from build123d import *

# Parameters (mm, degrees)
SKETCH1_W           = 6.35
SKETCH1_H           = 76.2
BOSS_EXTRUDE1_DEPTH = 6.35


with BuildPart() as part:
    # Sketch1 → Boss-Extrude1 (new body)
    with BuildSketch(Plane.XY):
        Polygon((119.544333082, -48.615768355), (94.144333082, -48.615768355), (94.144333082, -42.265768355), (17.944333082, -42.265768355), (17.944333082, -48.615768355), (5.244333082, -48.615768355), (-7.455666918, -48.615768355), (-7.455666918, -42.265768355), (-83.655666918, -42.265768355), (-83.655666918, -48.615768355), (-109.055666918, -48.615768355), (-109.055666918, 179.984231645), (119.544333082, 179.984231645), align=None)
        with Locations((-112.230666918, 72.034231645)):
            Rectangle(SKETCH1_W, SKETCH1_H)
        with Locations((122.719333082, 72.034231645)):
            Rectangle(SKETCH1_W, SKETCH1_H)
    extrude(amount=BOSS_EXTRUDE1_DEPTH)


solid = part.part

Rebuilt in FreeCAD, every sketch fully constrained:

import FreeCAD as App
import Part
import Sketcher
from FreeCAD import Vector
Q = App.Units.Quantity

doc = App.newDocument("Part")
body = doc.addObject("PartDesign::Body", "Body")

sketch1 = doc.addObject("Sketcher::SketchObject", "Sketch")
body.addObject(sketch1)
sketch1.AttachmentSupport = (doc.XY_Plane, [""])
sketch1.MapMode = "FlatFace"
sketch1.addGeometry(Part.LineSegment(Vector(94, -49, 0), Vector(120, -49, 0)), False)
sketch1.addGeometry(Part.LineSegment(Vector(120, -49, 0), Vector(120, 34, 0)), False)
sketch1.addGeometry(Part.LineSegment(Vector(120, 34, 0), Vector(126, 34, 0)), False)
sketch1.addGeometry(Part.LineSegment(Vector(126, 34, 0), Vector(126, 110, 0)), False)
sketch1.addGeometry(Part.LineSegment(Vector(126, 110, 0), Vector(120, 110, 0)), False)
sketch1.addGeometry(Part.LineSegment(Vector(120, 110, 0), Vector(120, 180, 0)), False)
sketch1.addGeometry(Part.LineSegment(Vector(120, 180, 0), Vector(-109, 180, 0)), False)
sketch1.addGeometry(Part.LineSegment(Vector(-109, 180, 0), Vector(-109, 110, 0)), False)
sketch1.addGeometry(Part.LineSegment(Vector(-109, 110, 0), Vector(-115, 110, 0)), False)
sketch1.addGeometry(Part.LineSegment(Vector(-115, 110, 0), Vector(-115, 34, 0)), False)
sketch1.addGeometry(Part.LineSegment(Vector(-115, 34, 0), Vector(-109, 34, 0)), False)
sketch1.addGeometry(Part.LineSegment(Vector(-109, 34, 0), Vector(-109, -49, 0)), False)
sketch1.addGeometry(Part.LineSegment(Vector(-109, -49, 0), Vector(-84, -49, 0)), False)
sketch1.addGeometry(Part.LineSegment(Vector(-84, -49, 0), Vector(-84, -42, 0)), False)
sketch1.addGeometry(Part.LineSegment(Vector(-84, -42, 0), Vector(-7, -42, 0)), False)
sketch1.addGeometry(Part.LineSegment(Vector(-7, -42, 0), Vector(-7, -49, 0)), False)
sketch1.addGeometry(Part.LineSegment(Vector(-7, -49, 0), Vector(18, -49, 0)), False)
sketch1.addGeometry(Part.LineSegment(Vector(18, -49, 0), Vector(18, -42, 0)), False)
sketch1.addGeometry(Part.LineSegment(Vector(18, -42, 0), Vector(94, -42, 0)), False)
sketch1.addGeometry(Part.LineSegment(Vector(94, -42, 0), Vector(94, -49, 0)), False)
sketch1.addConstraint(Sketcher.Constraint("Coincident", 0, 2, 1, 1))
sketch1.addConstraint(Sketcher.Constraint("Coincident", 1, 2, 2, 1))
sketch1.addConstraint(Sketcher.Constraint("Coincident", 2, 2, 3, 1))
sketch1.addConstraint(Sketcher.Constraint("Coincident", 3, 2, 4, 1))
sketch1.addConstraint(Sketcher.Constraint("Coincident", 4, 2, 5, 1))
sketch1.addConstraint(Sketcher.Constraint("Coincident", 5, 2, 6, 1))
sketch1.addConstraint(Sketcher.Constraint("Coincident", 6, 2, 7, 1))
sketch1.addConstraint(Sketcher.Constraint("Coincident", 7, 2, 8, 1))
sketch1.addConstraint(Sketcher.Constraint("Coincident", 8, 2, 9, 1))
sketch1.addConstraint(Sketcher.Constraint("Coincident", 9, 2, 10, 1))
sketch1.addConstraint(Sketcher.Constraint("Coincident", 10, 2, 11, 1))
sketch1.addConstraint(Sketcher.Constraint("Coincident", 11, 2, 12, 1))
sketch1.addConstraint(Sketcher.Constraint("Coincident", 12, 2, 13, 1))
sketch1.addConstraint(Sketcher.Constraint("Coincident", 13, 2, 14, 1))
sketch1.addConstraint(Sketcher.Constraint("Coincident", 14, 2, 15, 1))
sketch1.addConstraint(Sketcher.Constraint("Coincident", 15, 2, 16, 1))
sketch1.addConstraint(Sketcher.Constraint("Coincident", 16, 2, 17, 1))
sketch1.addConstraint(Sketcher.Constraint("Coincident", 17, 2, 18, 1))
sketch1.addConstraint(Sketcher.Constraint("Coincident", 18, 2, 19, 1))
sketch1.addConstraint(Sketcher.Constraint("Coincident", 19, 2, 0, 1))
sketch1.addConstraint(Sketcher.Constraint("Horizontal", 0))
sketch1.addConstraint(Sketcher.Constraint("Vertical", 1))
sketch1.addConstraint(Sketcher.Constraint("Horizontal", 2))
sketch1.addConstraint(Sketcher.Constraint("Vertical", 3))
sketch1.addConstraint(Sketcher.Constraint("Horizontal", 4))
sketch1.addConstraint(Sketcher.Constraint("Vertical", 5))
sketch1.addConstraint(Sketcher.Constraint("Horizontal", 6))
sketch1.addConstraint(Sketcher.Constraint("Vertical", 7))
sketch1.addConstraint(Sketcher.Constraint("Horizontal", 8))
sketch1.addConstraint(Sketcher.Constraint("Vertical", 9))
sketch1.addConstraint(Sketcher.Constraint("Horizontal", 10))
sketch1.addConstraint(Sketcher.Constraint("Vertical", 11))
sketch1.addConstraint(Sketcher.Constraint("Horizontal", 12))
sketch1.addConstraint(Sketcher.Constraint("Vertical", 13))
sketch1.addConstraint(Sketcher.Constraint("Horizontal", 14))
sketch1.addConstraint(Sketcher.Constraint("Vertical", 15))
sketch1.addConstraint(Sketcher.Constraint("Horizontal", 16))
sketch1.addConstraint(Sketcher.Constraint("Vertical", 17))
sketch1.addConstraint(Sketcher.Constraint("Horizontal", 18))
sketch1.addConstraint(Sketcher.Constraint("Vertical", 19))
sketch1.addConstraint(Sketcher.Constraint("Horizontal", 4, 2, 7, 2))
sketch1.addConstraint(Sketcher.Constraint("Horizontal", 2, 2, 9, 2))
sketch1.addConstraint(Sketcher.Constraint("Horizontal", 0, 2, 11, 2))
sketch1.addConstraint(Sketcher.Constraint("Horizontal", 12, 2, 15, 2))
sketch1.addConstraint(Sketcher.Constraint("Horizontal", 14, 2, 17, 2))
sketch1.addConstraint(Sketcher.Constraint("Vertical", 1, 2, 4, 2))
sketch1.addConstraint(Sketcher.Constraint("Vertical", 7, 2, 10, 2))
sketch1.addConstraint(Sketcher.Constraint("Equal", 4, 8))
sketch1.addConstraint(Sketcher.Constraint("Equal", 0, 12))
sketch1.addConstraint(Sketcher.Constraint("Equal", 12, 16))
sketch1.addConstraint(Sketcher.Constraint("Equal", 14, 18))
sketch1.addConstraint(Sketcher.Constraint("Equal", 18, 3))
sketch1.addConstraint(Sketcher.Constraint("Equal", 10, 13))
sketch1.addConstraint(Sketcher.Constraint("DistanceX", 0, 1, 0, 2, Q("1 in")))
sketch1.addConstraint(Sketcher.Constraint("DistanceX", 6, 2, 6, 1, Q("9 in")))
sketch1.addConstraint(Sketcher.Constraint("DistanceY", 0, 2, 5, 2, Q("9 in")))
sketch1.addConstraint(Sketcher.Constraint("DistanceY", 13, 2, 10, 2, Q("3 in")))
sketch1.addConstraint(Sketcher.Constraint("DistanceX", 2, 1, 2, 2, Q("0.25 in")))
sketch1.addConstraint(Sketcher.Constraint("DistanceY", 0, 2, -1, 1, Q("48.615768 mm")))
sketch1.addConstraint(Sketcher.Constraint("DistanceX", -1, 1, 0, 2, Q("119.544333 mm")))
pad1 = doc.addObject("PartDesign::Pad", "Pad")
body.addObject(pad1)
pad1.Profile = sketch1
pad1.Length = Q("0.25 in")

doc.recompute()
